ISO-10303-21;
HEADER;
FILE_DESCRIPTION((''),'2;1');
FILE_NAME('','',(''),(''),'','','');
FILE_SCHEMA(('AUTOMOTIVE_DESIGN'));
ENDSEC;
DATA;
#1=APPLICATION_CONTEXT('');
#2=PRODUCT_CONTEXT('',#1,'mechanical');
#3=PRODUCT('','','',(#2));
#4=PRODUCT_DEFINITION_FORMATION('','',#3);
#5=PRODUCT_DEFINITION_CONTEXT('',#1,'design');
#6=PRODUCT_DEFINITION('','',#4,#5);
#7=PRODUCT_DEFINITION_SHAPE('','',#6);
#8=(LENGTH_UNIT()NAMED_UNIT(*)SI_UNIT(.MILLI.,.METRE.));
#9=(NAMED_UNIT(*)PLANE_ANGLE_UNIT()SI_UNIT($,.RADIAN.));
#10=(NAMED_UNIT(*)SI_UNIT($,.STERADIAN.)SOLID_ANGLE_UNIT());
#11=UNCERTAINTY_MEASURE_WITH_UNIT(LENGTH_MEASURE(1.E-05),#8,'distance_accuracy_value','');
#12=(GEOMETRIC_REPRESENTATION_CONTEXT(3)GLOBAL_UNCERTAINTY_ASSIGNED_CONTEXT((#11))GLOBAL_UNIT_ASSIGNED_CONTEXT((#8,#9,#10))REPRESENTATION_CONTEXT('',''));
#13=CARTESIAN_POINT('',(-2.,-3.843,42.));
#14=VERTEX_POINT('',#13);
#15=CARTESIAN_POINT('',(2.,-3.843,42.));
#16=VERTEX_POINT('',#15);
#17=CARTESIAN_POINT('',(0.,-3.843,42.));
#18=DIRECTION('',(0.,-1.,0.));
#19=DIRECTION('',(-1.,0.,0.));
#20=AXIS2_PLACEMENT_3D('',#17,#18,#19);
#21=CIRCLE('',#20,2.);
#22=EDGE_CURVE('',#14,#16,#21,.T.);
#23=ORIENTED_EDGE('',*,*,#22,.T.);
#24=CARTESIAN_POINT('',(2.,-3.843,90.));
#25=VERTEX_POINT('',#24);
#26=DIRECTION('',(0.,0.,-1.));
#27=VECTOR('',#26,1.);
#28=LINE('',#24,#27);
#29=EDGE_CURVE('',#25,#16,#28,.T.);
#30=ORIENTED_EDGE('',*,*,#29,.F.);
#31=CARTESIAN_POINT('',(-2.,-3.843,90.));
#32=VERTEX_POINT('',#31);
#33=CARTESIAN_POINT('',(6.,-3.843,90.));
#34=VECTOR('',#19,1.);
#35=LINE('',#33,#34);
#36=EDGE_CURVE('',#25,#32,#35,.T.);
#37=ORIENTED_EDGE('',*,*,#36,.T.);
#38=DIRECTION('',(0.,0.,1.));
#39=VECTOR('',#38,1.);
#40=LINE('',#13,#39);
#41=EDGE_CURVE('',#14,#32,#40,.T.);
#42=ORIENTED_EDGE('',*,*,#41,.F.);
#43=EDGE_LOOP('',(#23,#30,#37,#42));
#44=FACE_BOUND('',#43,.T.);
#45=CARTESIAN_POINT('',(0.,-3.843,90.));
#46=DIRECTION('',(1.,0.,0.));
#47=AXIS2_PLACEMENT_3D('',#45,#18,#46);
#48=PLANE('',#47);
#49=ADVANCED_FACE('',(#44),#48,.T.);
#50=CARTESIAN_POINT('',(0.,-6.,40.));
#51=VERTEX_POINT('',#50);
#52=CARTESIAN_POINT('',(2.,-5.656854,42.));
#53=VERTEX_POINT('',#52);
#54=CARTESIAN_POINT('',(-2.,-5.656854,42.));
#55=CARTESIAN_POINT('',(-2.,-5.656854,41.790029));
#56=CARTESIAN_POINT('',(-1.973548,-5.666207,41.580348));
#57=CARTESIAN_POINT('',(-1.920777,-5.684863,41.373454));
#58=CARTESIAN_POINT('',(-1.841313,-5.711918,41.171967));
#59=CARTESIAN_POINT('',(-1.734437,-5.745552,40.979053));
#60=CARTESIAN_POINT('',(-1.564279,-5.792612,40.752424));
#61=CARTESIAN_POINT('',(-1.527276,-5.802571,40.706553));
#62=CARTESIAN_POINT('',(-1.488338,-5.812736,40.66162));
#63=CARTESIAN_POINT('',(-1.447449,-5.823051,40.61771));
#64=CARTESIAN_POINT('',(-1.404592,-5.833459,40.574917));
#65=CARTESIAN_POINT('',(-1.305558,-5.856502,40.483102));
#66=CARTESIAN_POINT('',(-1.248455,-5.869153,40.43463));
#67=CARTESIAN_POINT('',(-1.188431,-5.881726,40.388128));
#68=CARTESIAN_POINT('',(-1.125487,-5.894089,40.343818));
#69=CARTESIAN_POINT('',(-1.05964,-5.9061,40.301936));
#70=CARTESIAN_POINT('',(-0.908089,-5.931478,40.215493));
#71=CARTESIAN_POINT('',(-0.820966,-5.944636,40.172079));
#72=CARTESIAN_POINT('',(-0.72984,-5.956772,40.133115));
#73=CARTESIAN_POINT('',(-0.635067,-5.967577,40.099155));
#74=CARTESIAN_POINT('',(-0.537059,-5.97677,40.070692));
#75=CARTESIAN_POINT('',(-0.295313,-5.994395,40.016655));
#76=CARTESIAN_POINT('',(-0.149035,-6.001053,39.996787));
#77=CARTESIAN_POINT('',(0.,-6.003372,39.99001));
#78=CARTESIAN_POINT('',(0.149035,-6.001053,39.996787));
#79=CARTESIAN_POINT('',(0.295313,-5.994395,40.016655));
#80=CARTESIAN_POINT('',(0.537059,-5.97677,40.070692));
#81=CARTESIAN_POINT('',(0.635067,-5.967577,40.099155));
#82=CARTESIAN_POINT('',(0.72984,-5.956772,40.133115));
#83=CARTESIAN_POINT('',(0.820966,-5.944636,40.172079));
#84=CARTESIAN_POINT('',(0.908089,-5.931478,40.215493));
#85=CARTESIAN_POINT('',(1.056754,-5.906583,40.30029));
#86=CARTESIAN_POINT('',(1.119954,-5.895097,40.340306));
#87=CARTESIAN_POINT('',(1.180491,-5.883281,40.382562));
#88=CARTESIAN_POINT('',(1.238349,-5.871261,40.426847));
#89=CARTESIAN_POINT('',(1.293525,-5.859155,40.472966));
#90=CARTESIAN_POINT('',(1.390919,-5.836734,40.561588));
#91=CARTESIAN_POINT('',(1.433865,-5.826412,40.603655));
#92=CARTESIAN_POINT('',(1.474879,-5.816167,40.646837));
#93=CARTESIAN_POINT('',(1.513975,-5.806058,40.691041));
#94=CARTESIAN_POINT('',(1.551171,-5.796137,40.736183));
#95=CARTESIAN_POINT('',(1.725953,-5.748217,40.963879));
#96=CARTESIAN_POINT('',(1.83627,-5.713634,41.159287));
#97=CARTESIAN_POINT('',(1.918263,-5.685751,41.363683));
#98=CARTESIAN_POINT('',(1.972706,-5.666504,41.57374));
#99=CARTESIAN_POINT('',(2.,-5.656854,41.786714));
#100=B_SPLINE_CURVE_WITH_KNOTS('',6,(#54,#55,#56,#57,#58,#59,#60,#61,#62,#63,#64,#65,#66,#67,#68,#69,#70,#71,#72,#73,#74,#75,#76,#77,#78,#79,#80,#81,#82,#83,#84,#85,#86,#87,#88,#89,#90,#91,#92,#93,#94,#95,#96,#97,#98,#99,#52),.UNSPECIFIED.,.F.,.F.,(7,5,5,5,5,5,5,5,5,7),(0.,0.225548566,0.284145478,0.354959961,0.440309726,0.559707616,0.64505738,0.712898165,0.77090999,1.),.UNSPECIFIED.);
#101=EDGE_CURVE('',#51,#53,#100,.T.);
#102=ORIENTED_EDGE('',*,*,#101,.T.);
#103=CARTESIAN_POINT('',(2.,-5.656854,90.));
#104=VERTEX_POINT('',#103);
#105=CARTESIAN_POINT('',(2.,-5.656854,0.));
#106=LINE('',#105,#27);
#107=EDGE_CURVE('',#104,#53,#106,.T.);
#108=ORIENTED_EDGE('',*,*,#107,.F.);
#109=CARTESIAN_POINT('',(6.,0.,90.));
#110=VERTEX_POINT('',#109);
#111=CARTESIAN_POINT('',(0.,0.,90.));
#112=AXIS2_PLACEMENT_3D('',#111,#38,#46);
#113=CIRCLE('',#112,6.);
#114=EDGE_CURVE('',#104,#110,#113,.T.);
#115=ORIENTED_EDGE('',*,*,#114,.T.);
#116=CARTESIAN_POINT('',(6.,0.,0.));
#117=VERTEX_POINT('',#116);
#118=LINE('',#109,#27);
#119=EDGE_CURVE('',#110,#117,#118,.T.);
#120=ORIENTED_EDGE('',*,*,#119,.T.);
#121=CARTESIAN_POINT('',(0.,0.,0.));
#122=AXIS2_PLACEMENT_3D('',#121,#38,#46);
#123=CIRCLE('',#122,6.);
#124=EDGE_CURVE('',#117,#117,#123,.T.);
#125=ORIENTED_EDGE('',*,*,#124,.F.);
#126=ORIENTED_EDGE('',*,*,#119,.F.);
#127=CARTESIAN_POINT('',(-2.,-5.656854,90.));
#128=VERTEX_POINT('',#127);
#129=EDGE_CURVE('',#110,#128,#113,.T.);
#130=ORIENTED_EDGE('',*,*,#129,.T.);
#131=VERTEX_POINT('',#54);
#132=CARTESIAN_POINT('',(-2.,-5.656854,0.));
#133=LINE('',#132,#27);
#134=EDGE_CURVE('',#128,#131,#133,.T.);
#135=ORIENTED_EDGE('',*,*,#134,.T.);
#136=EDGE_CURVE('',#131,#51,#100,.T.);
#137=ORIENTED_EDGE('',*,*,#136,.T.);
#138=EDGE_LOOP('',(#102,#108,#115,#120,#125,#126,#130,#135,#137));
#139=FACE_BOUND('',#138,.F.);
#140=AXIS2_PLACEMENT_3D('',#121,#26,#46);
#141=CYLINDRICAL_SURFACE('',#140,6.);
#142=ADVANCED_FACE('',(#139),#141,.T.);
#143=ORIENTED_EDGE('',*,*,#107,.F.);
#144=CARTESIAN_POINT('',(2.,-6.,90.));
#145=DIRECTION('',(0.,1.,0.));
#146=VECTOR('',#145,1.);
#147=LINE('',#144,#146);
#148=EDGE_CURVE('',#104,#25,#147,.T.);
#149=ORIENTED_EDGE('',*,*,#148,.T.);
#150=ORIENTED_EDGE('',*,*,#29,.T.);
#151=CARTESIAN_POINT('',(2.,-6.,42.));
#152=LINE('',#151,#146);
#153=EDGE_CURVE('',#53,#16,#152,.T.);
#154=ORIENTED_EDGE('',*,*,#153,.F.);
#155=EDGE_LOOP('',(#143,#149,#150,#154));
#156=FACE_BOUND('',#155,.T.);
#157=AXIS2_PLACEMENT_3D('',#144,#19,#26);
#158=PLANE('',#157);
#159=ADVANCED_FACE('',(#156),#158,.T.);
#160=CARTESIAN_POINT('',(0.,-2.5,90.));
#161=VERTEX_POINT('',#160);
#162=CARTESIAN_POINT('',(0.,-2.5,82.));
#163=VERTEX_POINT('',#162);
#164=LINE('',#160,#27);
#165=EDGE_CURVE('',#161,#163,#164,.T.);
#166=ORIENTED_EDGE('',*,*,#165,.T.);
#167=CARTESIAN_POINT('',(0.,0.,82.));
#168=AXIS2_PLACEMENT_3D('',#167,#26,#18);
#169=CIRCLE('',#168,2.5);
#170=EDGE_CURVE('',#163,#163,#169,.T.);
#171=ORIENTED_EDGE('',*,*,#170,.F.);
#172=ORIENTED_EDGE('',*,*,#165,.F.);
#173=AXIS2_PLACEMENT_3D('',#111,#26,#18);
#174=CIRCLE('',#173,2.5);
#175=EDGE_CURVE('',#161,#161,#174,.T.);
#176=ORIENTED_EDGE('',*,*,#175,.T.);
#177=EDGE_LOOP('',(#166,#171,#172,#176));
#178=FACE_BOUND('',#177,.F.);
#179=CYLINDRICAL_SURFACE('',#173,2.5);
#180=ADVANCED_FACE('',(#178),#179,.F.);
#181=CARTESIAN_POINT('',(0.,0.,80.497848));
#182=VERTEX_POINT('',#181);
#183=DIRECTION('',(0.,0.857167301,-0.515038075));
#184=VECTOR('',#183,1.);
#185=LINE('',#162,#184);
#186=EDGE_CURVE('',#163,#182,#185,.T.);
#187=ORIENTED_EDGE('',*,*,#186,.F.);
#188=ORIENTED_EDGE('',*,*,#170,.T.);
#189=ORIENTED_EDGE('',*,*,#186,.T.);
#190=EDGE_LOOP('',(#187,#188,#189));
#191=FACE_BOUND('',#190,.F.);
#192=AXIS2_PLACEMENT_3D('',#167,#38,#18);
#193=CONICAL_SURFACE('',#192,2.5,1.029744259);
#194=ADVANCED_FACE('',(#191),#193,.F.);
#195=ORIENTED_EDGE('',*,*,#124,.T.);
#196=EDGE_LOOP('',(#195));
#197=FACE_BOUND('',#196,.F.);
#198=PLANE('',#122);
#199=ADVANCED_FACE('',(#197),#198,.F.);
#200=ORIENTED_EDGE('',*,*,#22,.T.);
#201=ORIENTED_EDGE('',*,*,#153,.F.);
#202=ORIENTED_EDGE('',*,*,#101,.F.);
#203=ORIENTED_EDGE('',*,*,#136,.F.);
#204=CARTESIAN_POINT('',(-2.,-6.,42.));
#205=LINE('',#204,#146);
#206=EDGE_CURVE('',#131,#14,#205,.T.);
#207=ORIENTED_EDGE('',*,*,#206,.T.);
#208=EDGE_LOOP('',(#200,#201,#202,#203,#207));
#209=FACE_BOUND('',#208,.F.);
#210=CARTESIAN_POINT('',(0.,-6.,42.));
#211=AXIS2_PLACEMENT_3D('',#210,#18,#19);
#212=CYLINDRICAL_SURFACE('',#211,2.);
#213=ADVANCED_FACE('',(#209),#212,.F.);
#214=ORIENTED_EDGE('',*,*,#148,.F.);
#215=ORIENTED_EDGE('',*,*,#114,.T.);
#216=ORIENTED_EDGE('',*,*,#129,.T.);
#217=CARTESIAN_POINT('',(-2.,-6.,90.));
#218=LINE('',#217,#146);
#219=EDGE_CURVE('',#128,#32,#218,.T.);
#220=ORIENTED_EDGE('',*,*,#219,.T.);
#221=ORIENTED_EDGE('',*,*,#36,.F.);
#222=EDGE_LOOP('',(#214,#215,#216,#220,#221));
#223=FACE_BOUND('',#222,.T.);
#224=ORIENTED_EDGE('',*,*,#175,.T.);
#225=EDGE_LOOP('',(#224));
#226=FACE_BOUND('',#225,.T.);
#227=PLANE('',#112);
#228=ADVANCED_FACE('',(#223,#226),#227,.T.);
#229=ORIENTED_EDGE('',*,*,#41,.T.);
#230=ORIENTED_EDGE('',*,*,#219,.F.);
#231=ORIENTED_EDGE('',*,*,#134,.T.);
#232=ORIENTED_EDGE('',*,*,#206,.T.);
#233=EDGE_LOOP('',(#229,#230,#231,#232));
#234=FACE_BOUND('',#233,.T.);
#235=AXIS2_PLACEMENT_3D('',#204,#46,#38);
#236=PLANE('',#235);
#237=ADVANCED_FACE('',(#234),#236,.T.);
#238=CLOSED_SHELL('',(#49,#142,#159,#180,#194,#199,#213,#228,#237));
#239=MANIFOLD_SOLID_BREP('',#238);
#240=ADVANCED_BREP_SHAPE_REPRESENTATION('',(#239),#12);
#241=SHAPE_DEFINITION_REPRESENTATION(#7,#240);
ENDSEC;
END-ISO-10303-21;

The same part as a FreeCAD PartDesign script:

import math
import FreeCAD as App
import Part
import Sketcher

V = App.Vector

doc = App.newDocument("Part")
body = doc.addObject("PartDesign::Body", "Body")

sketch1 = body.newObject("Sketcher::SketchObject", "Sketch")
sketch1.AttachmentSupport = (doc.getObject("XY_Plane"), [""])
sketch1.MapMode = "FlatFace"
sketch1.addGeometry(Part.Circle(V(0, 0, 0), V(0, 0, 1), 6), False)
sketch1.addConstraint([
    Sketcher.Constraint("Coincident", 0, 3, -1, 1),
    Sketcher.Constraint("Diameter", 0, 12.0),
])
pad1 = body.newObject("PartDesign::Pad", "Pad")
pad1.Profile = sketch1
pad1.Length = 35

sketch2 = body.newObject("Sketcher::SketchObject", "Sketch001")
sketch2.AttachmentSupport = (doc.getObject("XY_Plane"), [""])
sketch2.MapMode = "FlatFace"
sketch2.AttachmentOffset = App.Placement(V(0, 0, 35), App.Rotation())
sketch2.addGeometry(Part.Circle(V(0, 0, 0), V(0, 0, 1), 6), False)
sketch2.addConstraint([
    Sketcher.Constraint("Coincident", 0, 3, -1, 1),
    Sketcher.Constraint("Diameter", 0, 12.0),
])
pad2 = body.newObject("PartDesign::Pad", "Pad001")
pad2.Profile = sketch2
pad2.Length = 55

sketch3 = body.newObject("Sketcher::SketchObject", "Sketch002")
sketch3.AttachmentSupport = (doc.getObject("XZ_Plane"), [""])
sketch3.MapMode = "FlatFace"
sketch3.AttachmentOffset = App.Placement(V(0, 0, 6), App.Rotation())
sketch3.addGeometry([
    Part.LineSegment(V(2, 42, 0), V(2, 90, 0)),
    Part.LineSegment(V(2, 90, 0), V(-2, 90, 0)),
    Part.LineSegment(V(-2, 90, 0), V(-2, 42, 0)),
    Part.ArcOfCircle(Part.Circle(V(0, 42, 0), V(0, 0, 1), 2), math.radians(180), math.radians(360)),
], False)
sketch3.addConstraint([
    Sketcher.Constraint("Coincident", 0, 2, 1, 1),
    Sketcher.Constraint("Coincident", 1, 2, 2, 1),
    Sketcher.Constraint("Tangent", 2, 2, 3, 1),
    Sketcher.Constraint("Tangent", 3, 2, 0, 1),
    Sketcher.Constraint("Vertical", 0),
    Sketcher.Constraint("Horizontal", 1),
    Sketcher.Constraint("Vertical", 2),
    Sketcher.Constraint("PointOnObject", 3, 3, -2),
    Sketcher.Constraint("Radius", 3, 2.0),
    Sketcher.Constraint("DistanceY", 0, 1, 0, 2, 48.0),
    Sketcher.Constraint("DistanceY", -1, 1, 3, 3, 42.0),
])
pocket1 = body.newObject("PartDesign::Pocket", "Pocket")
pocket1.Profile = sketch3
pocket1.Length = 2.157

sketch4 = body.newObject("Sketcher::SketchObject", "Sketch003")
sketch4.AttachmentSupport = (doc.getObject("XY_Plane"), [""])
sketch4.MapMode = "FlatFace"
sketch4.AttachmentOffset = App.Placement(V(0, 0, 90), App.Rotation())
sketch4.addGeometry(Part.Circle(V(0, 0, 0), V(0, 0, 1), 2.5), False)
sketch4.addConstraint([
    Sketcher.Constraint("Coincident", 0, 3, -1, 1),
    Sketcher.Constraint("Diameter", 0, 5.0),
])
doc.recompute()
hole = body.newObject("PartDesign::Hole", "Hole")
hole.Profile = sketch4
hole.ThreadType = "None"
hole.Diameter = 5
hole.DepthType = "Dimension"
hole.Depth = 8
hole.DrillPoint = "Angled"
hole.DrillPointAngle = 118

doc.recompute()
